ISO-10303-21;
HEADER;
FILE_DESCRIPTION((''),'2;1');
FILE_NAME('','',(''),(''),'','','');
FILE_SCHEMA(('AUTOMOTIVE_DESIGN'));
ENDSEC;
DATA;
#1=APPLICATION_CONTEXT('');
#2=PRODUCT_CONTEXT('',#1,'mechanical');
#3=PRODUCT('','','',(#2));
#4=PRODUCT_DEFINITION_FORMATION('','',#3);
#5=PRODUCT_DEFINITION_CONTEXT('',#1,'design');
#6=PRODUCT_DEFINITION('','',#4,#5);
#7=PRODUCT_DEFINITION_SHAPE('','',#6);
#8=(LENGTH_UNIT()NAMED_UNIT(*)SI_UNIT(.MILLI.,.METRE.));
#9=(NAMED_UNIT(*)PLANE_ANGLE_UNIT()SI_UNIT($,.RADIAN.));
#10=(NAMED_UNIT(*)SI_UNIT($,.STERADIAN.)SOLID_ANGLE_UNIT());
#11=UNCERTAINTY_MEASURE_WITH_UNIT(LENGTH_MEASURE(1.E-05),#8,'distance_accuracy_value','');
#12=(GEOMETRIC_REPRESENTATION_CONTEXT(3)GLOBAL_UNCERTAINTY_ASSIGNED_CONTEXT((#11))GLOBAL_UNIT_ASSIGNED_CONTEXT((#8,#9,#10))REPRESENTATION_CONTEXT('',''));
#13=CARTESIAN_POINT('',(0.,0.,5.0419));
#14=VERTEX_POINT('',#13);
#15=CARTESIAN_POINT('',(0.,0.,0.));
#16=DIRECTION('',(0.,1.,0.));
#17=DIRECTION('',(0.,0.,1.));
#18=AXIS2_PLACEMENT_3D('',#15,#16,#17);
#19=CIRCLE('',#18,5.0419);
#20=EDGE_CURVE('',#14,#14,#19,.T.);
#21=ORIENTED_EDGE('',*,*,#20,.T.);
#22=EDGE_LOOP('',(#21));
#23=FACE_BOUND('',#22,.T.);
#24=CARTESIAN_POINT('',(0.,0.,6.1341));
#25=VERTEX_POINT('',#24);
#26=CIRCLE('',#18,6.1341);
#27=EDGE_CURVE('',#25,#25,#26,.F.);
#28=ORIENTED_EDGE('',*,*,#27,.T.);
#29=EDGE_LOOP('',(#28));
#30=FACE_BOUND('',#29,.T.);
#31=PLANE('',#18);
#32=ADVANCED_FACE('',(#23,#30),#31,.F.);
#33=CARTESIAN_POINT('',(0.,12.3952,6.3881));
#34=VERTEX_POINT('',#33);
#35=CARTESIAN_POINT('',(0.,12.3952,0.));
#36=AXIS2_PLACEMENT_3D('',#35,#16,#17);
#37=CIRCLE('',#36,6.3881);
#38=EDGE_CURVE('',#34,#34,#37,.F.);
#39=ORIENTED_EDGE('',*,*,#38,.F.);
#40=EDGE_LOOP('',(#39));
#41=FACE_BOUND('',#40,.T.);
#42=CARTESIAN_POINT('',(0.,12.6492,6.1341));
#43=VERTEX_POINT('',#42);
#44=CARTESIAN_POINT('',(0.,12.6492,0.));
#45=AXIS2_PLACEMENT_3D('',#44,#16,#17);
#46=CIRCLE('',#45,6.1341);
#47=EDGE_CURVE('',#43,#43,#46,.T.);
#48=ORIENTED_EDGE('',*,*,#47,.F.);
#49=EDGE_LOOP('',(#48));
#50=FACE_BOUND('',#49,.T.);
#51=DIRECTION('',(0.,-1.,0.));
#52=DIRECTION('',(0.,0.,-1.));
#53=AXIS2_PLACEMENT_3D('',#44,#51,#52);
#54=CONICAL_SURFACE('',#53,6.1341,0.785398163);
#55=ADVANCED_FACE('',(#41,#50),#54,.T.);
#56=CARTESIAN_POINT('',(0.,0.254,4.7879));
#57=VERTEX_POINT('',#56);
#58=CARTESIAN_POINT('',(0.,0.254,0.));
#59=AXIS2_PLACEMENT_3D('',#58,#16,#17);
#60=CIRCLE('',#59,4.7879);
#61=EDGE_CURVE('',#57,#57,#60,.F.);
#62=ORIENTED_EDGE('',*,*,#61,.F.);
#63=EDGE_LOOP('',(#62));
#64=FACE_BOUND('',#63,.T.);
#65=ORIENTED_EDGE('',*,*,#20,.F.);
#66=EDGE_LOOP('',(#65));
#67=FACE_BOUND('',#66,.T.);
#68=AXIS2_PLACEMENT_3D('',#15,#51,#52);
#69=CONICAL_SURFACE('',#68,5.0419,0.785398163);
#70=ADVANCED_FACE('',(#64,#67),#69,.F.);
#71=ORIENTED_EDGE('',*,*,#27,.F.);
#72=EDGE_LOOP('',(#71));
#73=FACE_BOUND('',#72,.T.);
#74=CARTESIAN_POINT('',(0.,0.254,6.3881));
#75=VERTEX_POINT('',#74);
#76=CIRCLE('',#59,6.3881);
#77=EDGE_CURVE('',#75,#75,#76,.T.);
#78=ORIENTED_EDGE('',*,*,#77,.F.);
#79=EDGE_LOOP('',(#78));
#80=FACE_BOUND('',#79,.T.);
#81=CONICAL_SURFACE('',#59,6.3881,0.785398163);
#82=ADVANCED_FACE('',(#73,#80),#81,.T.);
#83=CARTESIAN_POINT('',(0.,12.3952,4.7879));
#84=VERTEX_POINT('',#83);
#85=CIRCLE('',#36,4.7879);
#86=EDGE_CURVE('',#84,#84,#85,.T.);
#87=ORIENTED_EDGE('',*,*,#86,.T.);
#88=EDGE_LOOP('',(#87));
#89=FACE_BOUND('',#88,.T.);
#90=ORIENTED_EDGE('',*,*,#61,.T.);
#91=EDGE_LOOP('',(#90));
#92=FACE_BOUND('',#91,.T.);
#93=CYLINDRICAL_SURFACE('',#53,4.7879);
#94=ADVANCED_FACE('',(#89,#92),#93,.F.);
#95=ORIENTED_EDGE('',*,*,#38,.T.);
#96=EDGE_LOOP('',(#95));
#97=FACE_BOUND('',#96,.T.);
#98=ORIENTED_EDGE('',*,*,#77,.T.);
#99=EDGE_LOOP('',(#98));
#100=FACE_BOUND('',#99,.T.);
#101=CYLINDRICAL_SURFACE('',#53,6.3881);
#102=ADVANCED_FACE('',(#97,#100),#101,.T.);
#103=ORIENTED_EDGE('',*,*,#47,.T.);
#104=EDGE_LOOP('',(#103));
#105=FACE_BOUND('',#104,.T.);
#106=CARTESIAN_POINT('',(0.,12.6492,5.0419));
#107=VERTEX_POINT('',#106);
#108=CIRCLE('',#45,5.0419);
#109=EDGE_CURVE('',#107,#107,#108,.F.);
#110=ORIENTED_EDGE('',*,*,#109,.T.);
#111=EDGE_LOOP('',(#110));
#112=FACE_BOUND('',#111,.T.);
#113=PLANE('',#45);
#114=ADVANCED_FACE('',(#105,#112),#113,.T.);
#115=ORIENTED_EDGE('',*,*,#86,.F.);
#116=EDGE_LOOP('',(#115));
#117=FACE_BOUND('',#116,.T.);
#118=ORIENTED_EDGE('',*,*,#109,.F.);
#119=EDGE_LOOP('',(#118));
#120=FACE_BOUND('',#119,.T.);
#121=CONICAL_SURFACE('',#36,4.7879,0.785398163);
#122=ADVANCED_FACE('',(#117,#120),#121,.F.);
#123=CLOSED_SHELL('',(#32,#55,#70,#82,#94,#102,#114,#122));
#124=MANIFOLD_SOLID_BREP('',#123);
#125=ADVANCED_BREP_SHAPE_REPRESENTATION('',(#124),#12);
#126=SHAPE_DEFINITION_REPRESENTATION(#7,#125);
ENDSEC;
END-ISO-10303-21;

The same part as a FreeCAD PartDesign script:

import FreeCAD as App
import Part
import Sketcher

V = App.Vector
Q = App.Units.Quantity


def edges_at(feature, points):
    """Names of the edges that pass closest to the given points."""
    edges = feature.Shape.Edges
    near = lambda p: min(range(len(edges)), key=lambda i: edges[i].distToShape(Part.Vertex(*p))[0])
    return sorted({f"Edge{near(p) + 1}" for p in points})

doc = App.newDocument("Part")
params = doc.addObject("Spreadsheet::Sheet", "Params")
for row, (alias, value) in enumerate([
    ("sketch1_diameter", "0.503 in"),
    ("sketch1_diameter2", "0.377 in"),
    ("pad1_length", "0.498 in"),
    ("chamfer_size", "0.01 in"),
], start=1):
    params.set(f"A{row}", alias)
    params.set(f"B{row}", "=" + value)
    params.setAlias(f"B{row}", alias)

body = doc.addObject("PartDesign::Body", "Body")

sketch1 = body.newObject("Sketcher::SketchObject", "Sketch")
sketch1.AttachmentSupport = (doc.getObject("XZ_Plane"), [""])
sketch1.MapMode = "FlatFace"
sketch1.addGeometry([
    Part.Circle(V(0, 0, 0), V(0, 0, 1), 6.4),
    Part.Circle(V(0, 0, 0), V(0, 0, 1), 4.8),
], False)
sketch1.addConstraint([
    Sketcher.Constraint("Coincident", 0, 3, -1, 1),
    Sketcher.Constraint("Coincident", 1, 3, -1, 1),
    Sketcher.Constraint("Diameter", 0, Q("0.503 in")),
    Sketcher.Constraint("Diameter", 1, Q("0.377 in")),
])
sketch1.setExpression("Constraints[2]", "Params.sketch1_diameter")
sketch1.setExpression("Constraints[3]", "Params.sketch1_diameter2")
pad1 = body.newObject("PartDesign::Pad", "Pad")
pad1.Profile = sketch1
pad1.setExpression("Length", "Params.pad1_length")
pad1.Reversed = True
doc.recompute()

chamfer = body.newObject("PartDesign::Chamfer", "Chamfer")
chamfer.Base = (pad1, edges_at(pad1, [
    (0, 0, -6.388),
    (0, 12.649, -6.388),
    (0, 0, -4.788),
    (0, 12.649, -4.788),
]))
chamfer.setExpression("Size", "Params.chamfer_size")

doc.recompute()
